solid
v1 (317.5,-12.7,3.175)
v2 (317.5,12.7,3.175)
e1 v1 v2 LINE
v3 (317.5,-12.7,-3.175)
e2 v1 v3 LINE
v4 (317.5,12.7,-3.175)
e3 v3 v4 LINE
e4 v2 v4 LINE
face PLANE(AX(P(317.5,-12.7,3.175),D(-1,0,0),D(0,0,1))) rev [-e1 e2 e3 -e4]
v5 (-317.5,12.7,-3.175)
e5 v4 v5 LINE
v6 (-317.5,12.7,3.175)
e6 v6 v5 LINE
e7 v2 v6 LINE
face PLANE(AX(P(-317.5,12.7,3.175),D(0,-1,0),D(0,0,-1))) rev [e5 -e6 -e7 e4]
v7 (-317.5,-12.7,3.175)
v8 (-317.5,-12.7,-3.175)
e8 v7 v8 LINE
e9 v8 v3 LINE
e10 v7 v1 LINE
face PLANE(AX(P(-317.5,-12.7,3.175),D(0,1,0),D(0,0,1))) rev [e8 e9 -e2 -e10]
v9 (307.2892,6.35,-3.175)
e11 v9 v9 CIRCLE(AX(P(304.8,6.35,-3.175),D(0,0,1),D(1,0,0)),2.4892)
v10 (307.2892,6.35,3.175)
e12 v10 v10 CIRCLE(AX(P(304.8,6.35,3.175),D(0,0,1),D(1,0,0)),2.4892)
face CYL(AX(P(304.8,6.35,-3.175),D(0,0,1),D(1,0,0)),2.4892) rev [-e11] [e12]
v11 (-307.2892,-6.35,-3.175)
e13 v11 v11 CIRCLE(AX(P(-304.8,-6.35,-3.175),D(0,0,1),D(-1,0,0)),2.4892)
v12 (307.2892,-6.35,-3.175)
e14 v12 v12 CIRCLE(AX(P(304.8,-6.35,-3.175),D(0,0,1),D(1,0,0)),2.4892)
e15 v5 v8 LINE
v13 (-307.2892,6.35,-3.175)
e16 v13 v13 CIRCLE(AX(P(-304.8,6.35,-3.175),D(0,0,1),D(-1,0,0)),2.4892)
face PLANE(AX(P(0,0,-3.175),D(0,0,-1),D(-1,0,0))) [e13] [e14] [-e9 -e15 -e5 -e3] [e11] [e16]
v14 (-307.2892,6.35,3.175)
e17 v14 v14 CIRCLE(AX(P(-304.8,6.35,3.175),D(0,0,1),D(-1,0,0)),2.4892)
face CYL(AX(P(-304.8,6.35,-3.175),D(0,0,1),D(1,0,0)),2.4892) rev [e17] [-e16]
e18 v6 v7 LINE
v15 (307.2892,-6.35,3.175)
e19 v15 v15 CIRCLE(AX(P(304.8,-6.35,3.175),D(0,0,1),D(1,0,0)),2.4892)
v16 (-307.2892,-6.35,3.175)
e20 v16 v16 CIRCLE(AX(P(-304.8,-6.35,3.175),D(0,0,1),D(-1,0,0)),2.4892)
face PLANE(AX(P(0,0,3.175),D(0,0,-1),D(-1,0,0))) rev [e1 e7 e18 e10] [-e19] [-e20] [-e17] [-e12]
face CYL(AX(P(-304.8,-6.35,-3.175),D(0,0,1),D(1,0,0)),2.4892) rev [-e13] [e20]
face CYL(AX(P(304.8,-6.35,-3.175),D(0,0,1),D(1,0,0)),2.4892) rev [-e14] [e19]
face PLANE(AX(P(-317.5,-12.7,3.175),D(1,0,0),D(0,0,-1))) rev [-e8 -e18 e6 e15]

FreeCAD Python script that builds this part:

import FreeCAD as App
import Part
import Sketcher

V = App.Vector
Q = App.Units.Quantity

doc = App.newDocument("Part")
params = doc.addObject("Spreadsheet::Sheet", "Params")
for row, (alias, value) in enumerate([
    ("sketch1_width", "25 in"),
    ("sketch1_height", "1 in"),
    ("pad1_length", "0.25 in"),
    ("sketch2_diameter", "0.196 in"),
], start=1):
    params.set(f"A{row}", alias)
    params.set(f"B{row}", "=" + value)
    params.setAlias(f"B{row}", alias)

body = doc.addObject("PartDesign::Body", "Body")

sketch1 = body.newObject("Sketcher::SketchObject", "Sketch")
sketch1.AttachmentSupport = (doc.getObject("XY_Plane"), [""])
sketch1.MapMode = "FlatFace"
sketch1.addGeometry([
    Part.LineSegment(V(-318, 13, 0), V(-318, -13, 0)),
    Part.LineSegment(V(-318, -13, 0), V(318, -13, 0)),
    Part.LineSegment(V(318, -13, 0), V(318, 13, 0)),
    Part.LineSegment(V(318, 13, 0), V(-318, 13, 0)),
], False)
sketch1.addConstraint([
    Sketcher.Constraint("Coincident", 0, 2, 1, 1),
    Sketcher.Constraint("Coincident", 1, 2, 2, 1),
    Sketcher.Constraint("Coincident", 2, 2, 3, 1),
    Sketcher.Constraint("Coincident", 3, 2, 0, 1),
    Sketcher.Constraint("Vertical", 0),
    Sketcher.Constraint("Horizontal", 1),
    Sketcher.Constraint("Vertical", 2),
    Sketcher.Constraint("Horizontal", 3),
    Sketcher.Constraint("Symmetric", 0, 2, 2, 2, -1, 1),
    Sketcher.Constraint("DistanceX", 1, 1, 1, 2, Q("25 in")),
    Sketcher.Constraint("DistanceY", 0, 2, 0, 1, Q("1 in")),
])
sketch1.setExpression("Constraints[9]", "Params.sketch1_width")
sketch1.setExpression("Constraints[10]", "Params.sketch1_height")
pad1 = body.newObject("PartDesign::Pad", "Pad")
pad1.Profile = sketch1
pad1.setExpression("Length", "Params.pad1_length")
pad1.Midplane = True

sketch2 = body.newObject("Sketcher::SketchObject", "Sketch001")
sketch2.AttachmentSupport = (doc.getObject("XY_Plane"), [""])
sketch2.MapMode = "FlatFace"
sketch2.addGeometry([
    Part.Circle(V(304.8, -6.3, 0), V(0, 0, 1), 2.5),
    Part.Circle(V(304.8, 6.3, 0), V(0, 0, 1), 2.5),
    Part.Circle(V(-304.8, 6.3, 0), V(0, 0, 1), 2.5),
    Part.Circle(V(-304.8, -6.3, 0), V(0, 0, 1), 2.5),
], False)
sketch2.addConstraint([
    Sketcher.Constraint("Equal", 0, 1),
    Sketcher.Constraint("Equal", 1, 2),
    Sketcher.Constraint("Equal", 2, 3),
    Sketcher.Constraint("Symmetric", 0, 3, 2, 3, -1, 1),
    Sketcher.Constraint("Symmetric", 1, 3, 3, 3, -1, 1),
    Sketcher.Constraint("Symmetric", 1, 3, 2, 3, -2),
    Sketcher.Constraint("Diameter", 0, Q("0.196 in")),
    Sketcher.Constraint("DistanceX", -1, 1, 0, 3, Q("12 in")),
    Sketcher.Constraint("DistanceY", 0, 3, 1, 3, Q("0.5 in")),
])
sketch2.setExpression("Constraints[6]", "Params.sketch2_diameter")
pocket1 = body.newObject("PartDesign::Pocket", "Pocket")
pocket1.Profile = sketch2
pocket1.Type = "ThroughAll"
pocket1.Midplane = True

doc.recompute()
